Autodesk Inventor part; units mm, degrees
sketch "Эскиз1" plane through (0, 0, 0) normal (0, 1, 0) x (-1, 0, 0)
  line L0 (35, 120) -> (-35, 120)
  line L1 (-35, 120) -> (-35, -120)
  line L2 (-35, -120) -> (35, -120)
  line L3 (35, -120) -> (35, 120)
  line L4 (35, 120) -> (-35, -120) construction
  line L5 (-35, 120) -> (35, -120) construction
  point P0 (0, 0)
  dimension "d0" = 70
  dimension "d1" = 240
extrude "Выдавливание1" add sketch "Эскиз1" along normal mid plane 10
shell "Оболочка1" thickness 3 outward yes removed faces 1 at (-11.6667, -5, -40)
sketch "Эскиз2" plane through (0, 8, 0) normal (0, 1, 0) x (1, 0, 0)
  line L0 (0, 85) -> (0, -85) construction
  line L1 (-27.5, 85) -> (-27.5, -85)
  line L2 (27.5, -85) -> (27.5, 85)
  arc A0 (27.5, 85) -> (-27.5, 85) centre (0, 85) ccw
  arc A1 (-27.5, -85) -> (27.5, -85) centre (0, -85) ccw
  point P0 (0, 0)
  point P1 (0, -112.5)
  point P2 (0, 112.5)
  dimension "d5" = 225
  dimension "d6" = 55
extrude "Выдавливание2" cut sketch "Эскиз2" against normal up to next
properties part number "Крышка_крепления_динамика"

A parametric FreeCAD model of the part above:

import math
import FreeCAD as App
import Part
import Sketcher
from FreeCAD import Vector
Q = App.Units.Quantity


def faces_at(feature, points):
    """Names of the faces that lie closest to the given points."""
    faces = feature.Shape.Faces
    near = lambda p: min(range(len(faces)), key=lambda i: faces[i].distToShape(Part.Vertex(*p))[0])
    return sorted({f"Face{near(p) + 1}" for p in points})


def add_polygon(sketch, points):
    """Adds a closed chain of lines whose ends are joined by coincident constraints."""
    first, n = sketch.GeometryCount, len(points)
    for a, b in zip(points, points[1:] + points[:1]):
        sketch.addGeometry(Part.LineSegment(App.Vector(*a, 0), App.Vector(*b, 0)), False)
    for i in range(n):
        sketch.addConstraint(Sketcher.Constraint("Coincident", first + i, 2, first + (i + 1) % n, 1))

doc = App.newDocument("Part")
body = doc.addObject("PartDesign::Body", "Body")

# Sketch on XZ plane
sketch1 = body.newObject("Sketcher::SketchObject", "Sketch")
sketch1.AttachmentSupport = (doc.getObject("XZ_Plane"), [""])
sketch1.MapMode = "FlatFace"
add_polygon(sketch1, [(-35, -120), (-35, 120), (35, 120), (35, -120)])  # lines 0-3
sketch1.addConstraint([
    Sketcher.Constraint("Vertical", 0),
    Sketcher.Constraint("Horizontal", 1),
    Sketcher.Constraint("Vertical", 2),
    Sketcher.Constraint("Horizontal", 3),
    Sketcher.Constraint("Symmetric", 0, 2, 2, 2, -1, 1),
    Sketcher.Constraint("DistanceX", 1, 1, 1, 2, Q("70 mm")),
    Sketcher.Constraint("DistanceY", 0, 1, 0, 2, Q("240 mm")),
])
pad1 = body.newObject("PartDesign::Pad", "Pad")
pad1.Profile = sketch1
pad1.Length = 10
pad1.Midplane = True
doc.recompute()

thickness = body.newObject("PartDesign::Thickness", "Thickness")
thickness.Base = (pad1, faces_at(pad1, [(-11.667, -5, -40)]))
thickness.Value = 3
thickness.Reversed = False
thickness.Join = "Intersection"

# Sketch on XZ plane
sketch2 = body.newObject("Sketcher::SketchObject", "Sketch001")
sketch2.AttachmentSupport = (doc.getObject("XZ_Plane"), [""])
sketch2.MapMode = "FlatFace"
sketch2.AttachmentOffset = App.Placement(Vector(0, 0, -8), App.Rotation())
sketch2.addGeometry([
    Part.ArcOfCircle(Part.Circle(Vector(0, -85, 0), Vector(0, 0, 1), 28), math.radians(180), math.radians(360)),
    Part.LineSegment(Vector(-28, -85, 0), Vector(-28, 85, 0)),
    Part.ArcOfCircle(Part.Circle(Vector(0, 85, 0), Vector(0, 0, 1), 28), math.radians(0), math.radians(180)),
    Part.LineSegment(Vector(28, 85, 0), Vector(28, -85, 0)),
], False)
sketch2.addConstraint([
    Sketcher.Constraint("Tangent", 0, 1, 1, 1),
    Sketcher.Constraint("Tangent", 1, 2, 2, 2),
    Sketcher.Constraint("Tangent", 2, 1, 3, 1),
    Sketcher.Constraint("Tangent", 3, 2, 0, 2),
    Sketcher.Constraint("Vertical", 1),
    Sketcher.Constraint("Vertical", 3),
    Sketcher.Constraint("Symmetric", 0, 3, 2, 3, -1, 1),
    Sketcher.Constraint("Radius", 0, Q("27.5 mm")),
    Sketcher.Constraint("DistanceY", 1, 1, 1, 2, Q("170 mm")),
])
pocket1 = body.newObject("PartDesign::Pocket", "Pocket")
pocket1.Profile = sketch2
pocket1.Type = "UpToFirst"
pocket1.Reversed = True

doc.recompute()
